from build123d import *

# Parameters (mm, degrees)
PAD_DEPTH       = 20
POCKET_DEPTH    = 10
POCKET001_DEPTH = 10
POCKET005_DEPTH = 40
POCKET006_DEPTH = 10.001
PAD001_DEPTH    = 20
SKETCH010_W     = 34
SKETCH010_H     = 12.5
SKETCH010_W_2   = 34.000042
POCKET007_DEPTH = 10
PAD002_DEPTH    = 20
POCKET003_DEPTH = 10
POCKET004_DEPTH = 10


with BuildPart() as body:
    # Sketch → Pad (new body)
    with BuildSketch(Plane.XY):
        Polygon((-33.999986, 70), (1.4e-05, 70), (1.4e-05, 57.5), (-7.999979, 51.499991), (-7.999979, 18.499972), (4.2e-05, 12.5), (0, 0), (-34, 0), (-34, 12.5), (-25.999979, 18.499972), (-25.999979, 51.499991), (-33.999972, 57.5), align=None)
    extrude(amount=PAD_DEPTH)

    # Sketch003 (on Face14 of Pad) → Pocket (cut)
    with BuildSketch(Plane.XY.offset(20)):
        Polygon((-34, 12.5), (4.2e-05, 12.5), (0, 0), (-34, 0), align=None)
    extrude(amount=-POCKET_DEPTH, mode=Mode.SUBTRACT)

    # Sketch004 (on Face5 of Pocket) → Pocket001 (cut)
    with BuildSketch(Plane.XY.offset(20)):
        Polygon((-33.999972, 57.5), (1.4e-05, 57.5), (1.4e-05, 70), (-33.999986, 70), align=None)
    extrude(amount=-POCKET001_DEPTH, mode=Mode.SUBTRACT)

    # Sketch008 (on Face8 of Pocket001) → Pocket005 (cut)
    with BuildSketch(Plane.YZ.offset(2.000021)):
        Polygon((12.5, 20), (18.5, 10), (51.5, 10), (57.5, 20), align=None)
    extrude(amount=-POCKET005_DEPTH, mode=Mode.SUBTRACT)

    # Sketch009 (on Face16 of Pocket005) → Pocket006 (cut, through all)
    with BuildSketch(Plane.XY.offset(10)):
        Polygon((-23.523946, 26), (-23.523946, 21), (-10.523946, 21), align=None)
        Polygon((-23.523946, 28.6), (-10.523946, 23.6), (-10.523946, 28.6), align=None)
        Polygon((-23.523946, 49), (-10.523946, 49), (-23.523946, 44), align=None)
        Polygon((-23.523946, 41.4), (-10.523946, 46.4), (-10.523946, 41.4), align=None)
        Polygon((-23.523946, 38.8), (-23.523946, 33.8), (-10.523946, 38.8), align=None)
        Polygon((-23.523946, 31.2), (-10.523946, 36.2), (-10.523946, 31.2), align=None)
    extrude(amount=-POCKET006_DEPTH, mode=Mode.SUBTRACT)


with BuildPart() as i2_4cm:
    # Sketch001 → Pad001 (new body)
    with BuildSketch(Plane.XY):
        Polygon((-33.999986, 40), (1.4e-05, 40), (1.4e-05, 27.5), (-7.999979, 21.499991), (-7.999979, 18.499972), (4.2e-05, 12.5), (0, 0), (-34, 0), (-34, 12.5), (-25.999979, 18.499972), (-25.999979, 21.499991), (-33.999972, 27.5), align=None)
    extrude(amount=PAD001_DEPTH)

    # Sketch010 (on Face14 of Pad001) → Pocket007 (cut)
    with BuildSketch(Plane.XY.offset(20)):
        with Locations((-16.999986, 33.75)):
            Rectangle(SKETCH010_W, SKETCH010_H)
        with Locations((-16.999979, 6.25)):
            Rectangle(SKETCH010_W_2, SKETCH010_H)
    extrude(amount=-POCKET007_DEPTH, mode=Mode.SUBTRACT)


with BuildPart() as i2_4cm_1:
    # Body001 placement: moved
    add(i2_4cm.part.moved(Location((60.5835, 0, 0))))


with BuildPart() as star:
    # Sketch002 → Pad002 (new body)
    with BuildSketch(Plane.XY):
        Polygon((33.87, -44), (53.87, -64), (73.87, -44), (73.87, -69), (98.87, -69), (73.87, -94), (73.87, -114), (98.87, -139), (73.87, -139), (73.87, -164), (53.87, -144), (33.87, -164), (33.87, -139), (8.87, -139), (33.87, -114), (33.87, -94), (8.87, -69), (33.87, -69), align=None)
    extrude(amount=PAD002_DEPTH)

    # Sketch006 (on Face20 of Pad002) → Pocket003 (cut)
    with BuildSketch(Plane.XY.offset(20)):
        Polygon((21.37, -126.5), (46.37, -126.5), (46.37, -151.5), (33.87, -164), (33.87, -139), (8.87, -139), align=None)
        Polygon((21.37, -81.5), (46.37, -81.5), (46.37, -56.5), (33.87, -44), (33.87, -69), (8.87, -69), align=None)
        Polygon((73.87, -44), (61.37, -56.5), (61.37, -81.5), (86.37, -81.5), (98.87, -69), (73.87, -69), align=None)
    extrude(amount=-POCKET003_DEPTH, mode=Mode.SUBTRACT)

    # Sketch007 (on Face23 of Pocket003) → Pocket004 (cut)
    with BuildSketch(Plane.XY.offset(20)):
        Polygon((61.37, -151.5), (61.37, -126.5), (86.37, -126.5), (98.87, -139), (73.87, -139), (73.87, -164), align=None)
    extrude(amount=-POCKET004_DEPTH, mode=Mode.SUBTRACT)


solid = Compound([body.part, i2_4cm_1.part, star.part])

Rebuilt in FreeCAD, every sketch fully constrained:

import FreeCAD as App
import Part
import Sketcher
Q = App.Units.Quantity


def add_polygon(sketch, points):
    """Adds a closed chain of lines whose ends are joined by coincident constraints."""
    first, n = sketch.GeometryCount, len(points)
    for a, b in zip(points, points[1:] + points[:1]):
        sketch.addGeometry(Part.LineSegment(App.Vector(*a, 0), App.Vector(*b, 0)), False)
    for i in range(n):
        sketch.addConstraint(Sketcher.Constraint("Coincident", first + i, 2, first + (i + 1) % n, 1))

doc = App.newDocument("Part")
body = doc.addObject("PartDesign::Body", "Body")

# Sketch on XY plane
sketch1 = body.newObject("Sketcher::SketchObject", "Sketch")
sketch1.AttachmentSupport = (doc.getObject("XY_Plane"), [""])
sketch1.MapMode = "FlatFace"
add_polygon(sketch1, [(0.000014, 70), (-33.999986, 70), (-33.999972, 57.5), (-25.999979, 51.499991), (-25.999979, 18.499972), (-34, 12.5), (-34, 0), (0, 0), (0.000042, 12.5), (-7.999979, 18.499972), (-7.999979, 51.499991), (0.000014, 57.5)])  # lines 0-11
sketch1.addConstraint([
    Sketcher.Constraint("Horizontal", 0),
    Sketcher.Constraint("Vertical", 3),
    Sketcher.Constraint("Vertical", 5),
    Sketcher.Constraint("Horizontal", 6),
    Sketcher.Constraint("Vertical", 9),
    Sketcher.Constraint("Vertical", 11),
    Sketcher.Constraint("Coincident", 6, 2, -1, 1),
    Sketcher.Constraint("Horizontal", 4, 2, 7, 2),
    Sketcher.Constraint("Horizontal", 3, 2, 8, 2),
    Sketcher.Constraint("Horizontal", 2, 2, 9, 2),
    Sketcher.Constraint("Horizontal", 1, 2, 10, 2),
    Sketcher.Constraint("Equal", 0, 6),
    Sketcher.Constraint("Equal", 5, 11),
    Sketcher.Constraint("Equal", 2, 4),
    Sketcher.Constraint("Equal", 4, 8),
    Sketcher.Constraint("Equal", 8, 10),
    Sketcher.Constraint("DistanceX", 0, 2, 0, 1, 34.0),
    Sketcher.Constraint("Distance", 2, 10.0),
    Sketcher.Constraint("DistanceY", 5, 2, 5, 1, 12.5),
    Sketcher.Constraint("DistanceY", -1, 1, 0, 2, 70.0),
    Sketcher.Constraint("DistanceX", 3, 2, 8, 2, 18.0),
    Sketcher.Constraint("DistanceY", 3, 2, 3, 1, 33.000019),
    Sketcher.Constraint("DistanceX", 2, 2, -1, 1, 25.999979),
])
pad1 = body.newObject("PartDesign::Pad", "Pad")
pad1.Profile = sketch1
pad1.Length = 20

# Sketch on XY plane
sketch2 = body.newObject("Sketcher::SketchObject", "Sketch001")
sketch2.AttachmentSupport = (doc.getObject("XY_Plane"), [""])
sketch2.MapMode = "FlatFace"
sketch2.AttachmentOffset = App.Placement(App.Vector(0, 0, 20), App.Rotation())
add_polygon(sketch2, [(0.000042, 12.5), (-34, 12.5), (-34, 0), (0, 0)])  # lines 0-3
sketch2.addConstraint([
    Sketcher.Constraint("Horizontal", 0),
    Sketcher.Constraint("Vertical", 1),
    Sketcher.Constraint("Horizontal", 2),
    Sketcher.Constraint("Coincident", 2, 2, -1, 1),
    Sketcher.Constraint("DistanceX", 2, 1, 2, 2, 34.0),
    Sketcher.Constraint("DistanceY", 1, 2, 1, 1, 12.5),
    Sketcher.Constraint("DistanceX", 0, 2, 0, 1, 34.000042),
])
pocket1 = body.newObject("PartDesign::Pocket", "Pocket")
pocket1.Profile = sketch2
pocket1.Length = 10

# Sketch on XY plane
sketch3 = body.newObject("Sketcher::SketchObject", "Sketch002")
sketch3.AttachmentSupport = (doc.getObject("XY_Plane"), [""])
sketch3.MapMode = "FlatFace"
sketch3.AttachmentOffset = App.Placement(App.Vector(0, 0, 20), App.Rotation())
add_polygon(sketch3, [(-33.999972, 57.5), (0.000014, 57.5), (0.000014, 70), (-33.999986, 70)])  # lines 0-3
sketch3.addConstraint([
    Sketcher.Constraint("Horizontal", 0),
    Sketcher.Constraint("Vertical", 1),
    Sketcher.Constraint("Horizontal", 2),
    Sketcher.Constraint("DistanceX", 2, 2, 2, 1, 34.0),
    Sketcher.Constraint("DistanceY", 1, 1, 1, 2, 12.5),
    Sketcher.Constraint("DistanceY", -1, 1, 1, 2, 70.0),
    Sketcher.Constraint("DistanceX", 0, 1, 0, 2, 33.999986),
    Sketcher.Constraint("DistanceX", 2, 2, -1, 1, 33.999986),
])
pocket2 = body.newObject("PartDesign::Pocket", "Pocket001")
pocket2.Profile = sketch3
pocket2.Length = 10

# Sketch on YZ plane
sketch4 = body.newObject("Sketcher::SketchObject", "Sketch003")
sketch4.AttachmentSupport = (doc.getObject("YZ_Plane"), [""])
sketch4.MapMode = "FlatFace"
sketch4.AttachmentOffset = App.Placement(App.Vector(0, 0, 2.000021), App.Rotation())
add_polygon(sketch4, [(12.5, 20), (18.5, 10), (51.5, 10), (57.5, 20)])  # lines 0-3
sketch4.addConstraint([
    Sketcher.Constraint("Horizontal", 1),
    Sketcher.Constraint("Horizontal", 3),
    Sketcher.Constraint("Equal", 0, 2),
    Sketcher.Constraint("DistanceX", 1, 1, 1, 2, 33.0),
    Sketcher.Constraint("DistanceX", 3, 2, 3, 1, 45.0),
    Sketcher.Constraint("DistanceY", -1, 1, 0, 2, 10.0),
    Sketcher.Constraint("DistanceY", -1, 1, 2, 2, 20.0),
    Sketcher.Constraint("DistanceX", -1, 1, 0, 2, 18.5),
])
pocket3 = body.newObject("PartDesign::Pocket", "Pocket002")
pocket3.Profile = sketch4
pocket3.Length = 40

# Sketch on XY plane
sketch5 = body.newObject("Sketcher::SketchObject", "Sketch004")
sketch5.AttachmentSupport = (doc.getObject("XY_Plane"), [""])
sketch5.MapMode = "FlatFace"
sketch5.AttachmentOffset = App.Placement(App.Vector(0, 0, 10), App.Rotation())
add_polygon(sketch5, [(-23.523946, 26), (-23.523946, 21), (-10.523946, 21)])  # lines 0-2
add_polygon(sketch5, [(-23.523946, 28.6), (-10.523946, 23.6), (-10.523946, 28.6)])  # lines 3-5
add_polygon(sketch5, [(-10.523946, 49), (-23.523946, 49), (-23.523946, 44)])  # lines 6-8
add_polygon(sketch5, [(-10.523946, 46.4), (-23.523946, 41.4), (-10.523946, 41.4)])  # lines 9-11
add_polygon(sketch5, [(-23.523946, 38.8), (-23.523946, 33.8), (-10.523946, 38.8)])  # lines 12-14
add_polygon(sketch5, [(-10.523946, 36.2), (-23.523946, 31.2), (-10.523946, 31.2)])  # lines 15-17
sketch5.addConstraint([
    Sketcher.Constraint("Vertical", 0),
    Sketcher.Constraint("Horizontal", 1),
    Sketcher.Constraint("Vertical", 4),
    Sketcher.Constraint("Horizontal", 5),
    Sketcher.Constraint("Horizontal", 6),
    Sketcher.Constraint("Vertical", 7),
    Sketcher.Constraint("Horizontal", 10),
    Sketcher.Constraint("Vertical", 11),
    Sketcher.Constraint("Vertical", 12),
    Sketcher.Constraint("Horizontal", 14),
    Sketcher.Constraint("Horizontal", 16),
    Sketcher.Constraint("Vertical", 17),
    Sketcher.Constraint("Parallel", 2, 3),
    Sketcher.Constraint("Parallel", 8, 9),
    Sketcher.Constraint("Parallel", 9, 13),
    Sketcher.Constraint("Parallel", 13, 15),
    Sketcher.Constraint("Vertical", 1, 2, 3, 2),
    Sketcher.Constraint("Vertical", 2, 2, 5, 2),
    Sketcher.Constraint("Vertical", 5, 2, 6, 2),
    Sketcher.Constraint("Vertical", 4, 2, 8, 2),
    Sketcher.Constraint("Vertical", 7, 2, 9, 2),
    Sketcher.Constraint("Vertical", 8, 2, 10, 2),
    Sketcher.Constraint("Vertical", 9, 2, 12, 2),
    Sketcher.Constraint("Vertical", 11, 2, 13, 2),
    Sketcher.Constraint("Vertical", 14, 2, 15, 2),
    Sketcher.Constraint("Vertical", 13, 2, 16, 2),
    Sketcher.Constraint("Equal", 4, 7),
    Sketcher.Constraint("DistanceX", 1, 1, 1, 2, 13.0),
    Sketcher.Constraint("DistanceY", 0, 2, 0, 1, 5.0),
    Sketcher.Constraint("DistanceY", -1, 1, 0, 2, 21.0),
    Sketcher.Constraint("DistanceY", -1, 1, 6, 2, 49.0),
    Sketcher.Constraint("DistanceY", -1, 1, 3, 2, 23.6),
    Sketcher.Constraint("DistanceY", -1, 1, 9, 2, 41.4),
    Sketcher.Constraint("DistanceY", -1, 1, 12, 2, 33.8),
    Sketcher.Constraint("DistanceY", -1, 1, 15, 2, 31.2),
    Sketcher.Constraint("DistanceX", 0, 2, -1, 1, 23.523946),
])
pocket4 = body.newObject("PartDesign::Pocket", "Pocket003")
pocket4.Profile = sketch5
pocket4.Type = "ThroughAll"
body2 = doc.addObject("PartDesign::Body", "Body001")

# Sketch on XY plane
sketch6 = body2.newObject("Sketcher::SketchObject", "Sketch005")
sketch6.AttachmentSupport = (doc.getObject("XY_Plane001"), [""])
sketch6.MapMode = "FlatFace"
add_polygon(sketch6, [(0.000014, 40), (-33.999986, 40), (-33.999972, 27.5), (-25.999979, 21.499991), (-25.999979, 18.499972), (-34, 12.5), (-34, 0), (0, 0), (0.000042, 12.5), (-7.999979, 18.499972), (-7.999979, 21.499991), (0.000014, 27.5)])  # lines 0-11
sketch6.addConstraint([
    Sketcher.Constraint("Horizontal", 0),
    Sketcher.Constraint("Vertical", 3),
    Sketcher.Constraint("Vertical", 5),
    Sketcher.Constraint("Horizontal", 6),
    Sketcher.Constraint("Vertical", 9),
    Sketcher.Constraint("Vertical", 11),
    Sketcher.Constraint("Coincident", 6, 2, -1, 1),
    Sketcher.Constraint("Horizontal", 4, 2, 7, 2),
    Sketcher.Constraint("Horizontal", 3, 2, 8, 2),
    Sketcher.Constraint("Horizontal", 2, 2, 9, 2),
    Sketcher.Constraint("Horizontal", 1, 2, 10, 2),
    Sketcher.Constraint("Equal", 0, 6),
    Sketcher.Constraint("Equal", 5, 11),
    Sketcher.Constraint("Equal", 2, 4),
    Sketcher.Constraint("Equal", 4, 8),
    Sketcher.Constraint("Equal", 8, 10),
    Sketcher.Constraint("DistanceX", 0, 2, 0, 1, 34.0),
    Sketcher.Constraint("Distance", 2, 10.0),
    Sketcher.Constraint("DistanceY", 5, 2, 5, 1, 12.5),
    Sketcher.Constraint("DistanceY", -1, 1, 0, 2, 40.0),
    Sketcher.Constraint("DistanceX", 3, 2, 8, 2, 18.0),
    Sketcher.Constraint("DistanceY", 3, 2, 3, 1, 3.000019),
    Sketcher.Constraint("DistanceX", 2, 2, -1, 1, 25.999979),
])
pad2 = body2.newObject("PartDesign::Pad", "Pad001")
pad2.Profile = sketch6
pad2.Length = 20

# Sketch on XY plane
sketch7 = body2.newObject("Sketcher::SketchObject", "Sketch006")
sketch7.AttachmentSupport = (doc.getObject("XY_Plane001"), [""])
sketch7.MapMode = "FlatFace"
sketch7.AttachmentOffset = App.Placement(App.Vector(0, 0, 20), App.Rotation())
add_polygon(sketch7, [(-33.999986, 40), (-33.999986, 27.5), (0.000014, 27.5), (0.000014, 40)])  # lines 0-3
add_polygon(sketch7, [(-34, 12.5), (-34, 0), (0.000042, 0), (0.000042, 12.5)])  # lines 4-7
sketch7.addConstraint([
    Sketcher.Constraint("Vertical", 0),
    Sketcher.Constraint("Horizontal", 1),
    Sketcher.Constraint("Vertical", 2),
    Sketcher.Constraint("Horizontal", 3),
    Sketcher.Constraint("Vertical", 4),
    Sketcher.Constraint("Horizontal", 5),
    Sketcher.Constraint("Vertical", 6),
    Sketcher.Constraint("Horizontal", 7),
    Sketcher.Constraint("PointOnObject", 4, 2, -1),
    Sketcher.Constraint("Equal", 2, 4),
    Sketcher.Constraint("DistanceX", 1, 1, 1, 2, 34.0),
    Sketcher.Constraint("DistanceY", 0, 2, 0, 1, 12.5),
    Sketcher.Constraint("DistanceY", -1, 1, 2, 2, 40.0),
    Sketcher.Constraint("DistanceX", 4, 2, -1, 1, 34.0),
    Sketcher.Constraint("DistanceX", 5, 1, 5, 2, 34.000042),
    Sketcher.Constraint("DistanceX", 0, 2, -1, 1, 33.999986),
])
pocket5 = body2.newObject("PartDesign::Pocket", "Pocket004")
pocket5.Profile = sketch7
pocket5.Length = 10
body3 = doc.addObject("PartDesign::Body", "Body002")
doc.recompute()

body2.Placement = App.Placement(App.Vector(60.5835, 0, 0), App.Rotation(App.Vector(0, 0, 1), 0))
boolean = body3.newObject("PartDesign::Boolean", "Boolean")
boolean.Type = "Fuse"
boolean.addObjects([body2])
body4 = doc.addObject("PartDesign::Body", "Body003")

# Sketch on XY plane
sketch8 = body4.newObject("Sketcher::SketchObject", "Sketch007")
sketch8.AttachmentSupport = (doc.getObject("XY_Plane003"), [""])
sketch8.MapMode = "FlatFace"
add_polygon(sketch8, [(53.87, -64), (33.87, -44), (33.87, -69), (8.87, -69), (33.87, -94), (33.87, -114), (8.87, -139), (33.87, -139), (33.87, -164), (53.87, -144), (73.87, -164), (73.87, -139), (98.87, -139), (73.87, -114), (73.87, -94), (98.87, -69), (73.87, -69), (73.87, -44)])  # lines 0-17
sketch8.addConstraint([
    Sketcher.Constraint("Vertical", 1),
    Sketcher.Constraint("Horizontal", 2),
    Sketcher.Constraint("Vertical", 4),
    Sketcher.Constraint("Horizontal", 6),
    Sketcher.Constraint("Vertical", 7),
    Sketcher.Constraint("Vertical", 10),
    Sketcher.Constraint("Horizontal", 11),
    Sketcher.Constraint("Vertical", 13),
    Sketcher.Constraint("Horizontal", 15),
    Sketcher.Constraint("Vertical", 16),
    Sketcher.Constraint("Parallel", 0, 3),
    Sketcher.Constraint("Perpendicular", 3, 5),
    Sketcher.Constraint("Parallel", 5, 8),
    Sketcher.Constraint("Perpendicular", 8, 9),
    Sketcher.Constraint("Parallel", 9, 12),
    Sketcher.Constraint("Perpendicular", 12, 14),
    Sketcher.Constraint("Parallel", 14, 17),
    Sketcher.Constraint("Horizontal", 7, 2, 9, 2),
    Sketcher.Constraint("Horizontal", 6, 2, 10, 2),
    Sketcher.Constraint("Horizontal", 4, 2, 12, 2),
    Sketcher.Constraint("Horizontal", 3, 2, 13, 2),
    Sketcher.Constraint("Horizontal", 2, 2, 14, 2),
    Sketcher.Constraint("Horizontal", 0, 2, 16, 2),
    Sketcher.Constraint("Vertical", 1, 2, 3, 2),
    Sketcher.Constraint("Vertical", 2, 2, 5, 2),
    Sketcher.Constraint("Vertical", 4, 2, 6, 2),
    Sketcher.Constraint("Vertical", 10, 2, 12, 2),
    Sketcher.Constraint("Vertical", 11, 2, 14, 2),
    Sketcher.Constraint("Vertical", 13, 2, 15, 2),
    Sketcher.Constraint("Equal", 15, 1),
    Sketcher.Constraint("Equal", 1, 7),
    Sketcher.Constraint("DistanceX", 2, 2, 2, 1, 25.0),
    Sketcher.Constraint("DistanceY", 4, 2, 4, 1, 20.0),
    Sketcher.Constraint("DistanceY", 0, 2, -1, 1, 44.0),
    Sketcher.Constraint("DistanceY", 8, 2, -1, 1, 144.0),
    Sketcher.Constraint("DistanceX", -1, 1, 0, 2, 33.87),
])
pad3 = body4.newObject("PartDesign::Pad", "Pad002")
pad3.Profile = sketch8
pad3.Length = 20

# Sketch on XY plane
sketch9 = body4.newObject("Sketcher::SketchObject", "Sketch008")
sketch9.AttachmentSupport = (doc.getObject("XY_Plane003"), [""])
sketch9.MapMode = "FlatFace"
sketch9.AttachmentOffset = App.Placement(App.Vector(0, 0, 20), App.Rotation())
add_polygon(sketch9, [(46.37, -126.5), (21.37, -126.5), (8.87, -139), (33.87, -139), (33.87, -164), (46.37, -151.5)])  # lines 0-5
add_polygon(sketch9, [(21.37, -81.5), (46.37, -81.5), (46.37, -56.5), (33.87, -44), (33.87, -69), (8.87, -69)])  # lines 6-11
add_polygon(sketch9, [(73.87, -44), (61.37, -56.5), (61.37, -81.5), (86.37, -81.5), (98.87, -69), (73.87, -69)])  # lines 12-17
sketch9.addConstraint([
    Sketcher.Constraint("Horizontal", 0),
    Sketcher.Constraint("Horizontal", 2),
    Sketcher.Constraint("Vertical", 3),
    Sketcher.Constraint("Vertical", 5),
    Sketcher.Constraint("Horizontal", 6),
    Sketcher.Constraint("Vertical", 7),
    Sketcher.Constraint("Vertical", 9),
    Sketcher.Constraint("Horizontal", 10),
    Sketcher.Constraint("Vertical", 13),
    Sketcher.Constraint("Horizontal", 14),
    Sketcher.Constraint("Horizontal", 16),
    Sketcher.Constraint("Vertical", 17),
    Sketcher.Constraint("Parallel", 1, 4),
    Sketcher.Constraint("Perpendicular", 4, 8),
    Sketcher.Constraint("Parallel", 8, 11),
    Sketcher.Constraint("Perpendicular", 11, 12),
    Sketcher.Constraint("Parallel", 12, 15),
    Sketcher.Constraint("Horizontal", 7, 2, 12, 2),
    Sketcher.Constraint("Horizontal", 11, 2, 13, 2),
    Sketcher.Constraint("Horizontal", 10, 2, 15, 2),
    Sketcher.Constraint("Horizontal", 8, 2, 17, 2),
    Sketcher.Constraint("Vertical", 5, 2, 6, 2),
    Sketcher.Constraint("Vertical", 3, 2, 8, 2),
    Sketcher.Constraint("Vertical", 1, 2, 10, 2),
    Sketcher.Constraint("Vertical", 0, 2, 11, 2),
    Sketcher.Constraint("Equal", 0, 2),
    Sketcher.Constraint("Equal", 10, 14),
    Sketcher.Constraint("Equal", 16, 3),
    Sketcher.Constraint("Equal", 5, 7),
    Sketcher.Constraint("Equal", 4, 8),
    Sketcher.Constraint("DistanceX", 0, 2, 0, 1, 25.0),
    Sketcher.Constraint("DistanceY", 1, 2, -1, 1, 139.0),
    Sketcher.Constraint("DistanceY", 8, 2, -1, 1, 44.0),
    Sketcher.Constraint("DistanceY", 5, 2, 6, 2, 45.0),
    Sketcher.Constraint("DistanceX", 7, 2, 12, 2, 15.0),
    Sketcher.Constraint("DistanceX", -1, 1, 0, 2, 21.37),
])
pocket6 = body4.newObject("PartDesign::Pocket", "Pocket005")
pocket6.Profile = sketch9
pocket6.Length = 10

# Sketch on XY plane
sketch10 = body4.newObject("Sketcher::SketchObject", "Sketch009")
sketch10.AttachmentSupport = (doc.getObject("XY_Plane003"), [""])
sketch10.MapMode = "FlatFace"
sketch10.AttachmentOffset = App.Placement(App.Vector(0, 0, 20), App.Rotation())
add_polygon(sketch10, [(61.37, -126.5), (61.37, -151.5), (73.87, -164), (73.87, -139), (98.87, -139), (86.37, -126.5)])  # lines 0-5
sketch10.addConstraint([
    Sketcher.Constraint("Vertical", 0),
    Sketcher.Constraint("Vertical", 2),
    Sketcher.Constraint("Horizontal", 3),
    Sketcher.Constraint("Horizontal", 5),
    Sketcher.Constraint("Parallel", 1, 4),
    Sketcher.Constraint("Equal", 3, 5),
    Sketcher.Constraint("Equal", 5, 0),
    Sketcher.Constraint("DistanceX", 3, 1, 3, 2, 25.0),
    Sketcher.Constraint("Angle", 1, Q("-45 deg")),
    Sketcher.Constraint("DistanceY", 1, 2, -1, 1, 164.0),
    Sketcher.Constraint("DistanceY", 0, 2, -1, 1, 151.5),
    Sketcher.Constraint("DistanceX", -1, 1, 0, 2, 61.37),
])
pocket7 = body4.newObject("PartDesign::Pocket", "Pocket006")
pocket7.Profile = sketch10
pocket7.Length = 10

doc.recompute()
